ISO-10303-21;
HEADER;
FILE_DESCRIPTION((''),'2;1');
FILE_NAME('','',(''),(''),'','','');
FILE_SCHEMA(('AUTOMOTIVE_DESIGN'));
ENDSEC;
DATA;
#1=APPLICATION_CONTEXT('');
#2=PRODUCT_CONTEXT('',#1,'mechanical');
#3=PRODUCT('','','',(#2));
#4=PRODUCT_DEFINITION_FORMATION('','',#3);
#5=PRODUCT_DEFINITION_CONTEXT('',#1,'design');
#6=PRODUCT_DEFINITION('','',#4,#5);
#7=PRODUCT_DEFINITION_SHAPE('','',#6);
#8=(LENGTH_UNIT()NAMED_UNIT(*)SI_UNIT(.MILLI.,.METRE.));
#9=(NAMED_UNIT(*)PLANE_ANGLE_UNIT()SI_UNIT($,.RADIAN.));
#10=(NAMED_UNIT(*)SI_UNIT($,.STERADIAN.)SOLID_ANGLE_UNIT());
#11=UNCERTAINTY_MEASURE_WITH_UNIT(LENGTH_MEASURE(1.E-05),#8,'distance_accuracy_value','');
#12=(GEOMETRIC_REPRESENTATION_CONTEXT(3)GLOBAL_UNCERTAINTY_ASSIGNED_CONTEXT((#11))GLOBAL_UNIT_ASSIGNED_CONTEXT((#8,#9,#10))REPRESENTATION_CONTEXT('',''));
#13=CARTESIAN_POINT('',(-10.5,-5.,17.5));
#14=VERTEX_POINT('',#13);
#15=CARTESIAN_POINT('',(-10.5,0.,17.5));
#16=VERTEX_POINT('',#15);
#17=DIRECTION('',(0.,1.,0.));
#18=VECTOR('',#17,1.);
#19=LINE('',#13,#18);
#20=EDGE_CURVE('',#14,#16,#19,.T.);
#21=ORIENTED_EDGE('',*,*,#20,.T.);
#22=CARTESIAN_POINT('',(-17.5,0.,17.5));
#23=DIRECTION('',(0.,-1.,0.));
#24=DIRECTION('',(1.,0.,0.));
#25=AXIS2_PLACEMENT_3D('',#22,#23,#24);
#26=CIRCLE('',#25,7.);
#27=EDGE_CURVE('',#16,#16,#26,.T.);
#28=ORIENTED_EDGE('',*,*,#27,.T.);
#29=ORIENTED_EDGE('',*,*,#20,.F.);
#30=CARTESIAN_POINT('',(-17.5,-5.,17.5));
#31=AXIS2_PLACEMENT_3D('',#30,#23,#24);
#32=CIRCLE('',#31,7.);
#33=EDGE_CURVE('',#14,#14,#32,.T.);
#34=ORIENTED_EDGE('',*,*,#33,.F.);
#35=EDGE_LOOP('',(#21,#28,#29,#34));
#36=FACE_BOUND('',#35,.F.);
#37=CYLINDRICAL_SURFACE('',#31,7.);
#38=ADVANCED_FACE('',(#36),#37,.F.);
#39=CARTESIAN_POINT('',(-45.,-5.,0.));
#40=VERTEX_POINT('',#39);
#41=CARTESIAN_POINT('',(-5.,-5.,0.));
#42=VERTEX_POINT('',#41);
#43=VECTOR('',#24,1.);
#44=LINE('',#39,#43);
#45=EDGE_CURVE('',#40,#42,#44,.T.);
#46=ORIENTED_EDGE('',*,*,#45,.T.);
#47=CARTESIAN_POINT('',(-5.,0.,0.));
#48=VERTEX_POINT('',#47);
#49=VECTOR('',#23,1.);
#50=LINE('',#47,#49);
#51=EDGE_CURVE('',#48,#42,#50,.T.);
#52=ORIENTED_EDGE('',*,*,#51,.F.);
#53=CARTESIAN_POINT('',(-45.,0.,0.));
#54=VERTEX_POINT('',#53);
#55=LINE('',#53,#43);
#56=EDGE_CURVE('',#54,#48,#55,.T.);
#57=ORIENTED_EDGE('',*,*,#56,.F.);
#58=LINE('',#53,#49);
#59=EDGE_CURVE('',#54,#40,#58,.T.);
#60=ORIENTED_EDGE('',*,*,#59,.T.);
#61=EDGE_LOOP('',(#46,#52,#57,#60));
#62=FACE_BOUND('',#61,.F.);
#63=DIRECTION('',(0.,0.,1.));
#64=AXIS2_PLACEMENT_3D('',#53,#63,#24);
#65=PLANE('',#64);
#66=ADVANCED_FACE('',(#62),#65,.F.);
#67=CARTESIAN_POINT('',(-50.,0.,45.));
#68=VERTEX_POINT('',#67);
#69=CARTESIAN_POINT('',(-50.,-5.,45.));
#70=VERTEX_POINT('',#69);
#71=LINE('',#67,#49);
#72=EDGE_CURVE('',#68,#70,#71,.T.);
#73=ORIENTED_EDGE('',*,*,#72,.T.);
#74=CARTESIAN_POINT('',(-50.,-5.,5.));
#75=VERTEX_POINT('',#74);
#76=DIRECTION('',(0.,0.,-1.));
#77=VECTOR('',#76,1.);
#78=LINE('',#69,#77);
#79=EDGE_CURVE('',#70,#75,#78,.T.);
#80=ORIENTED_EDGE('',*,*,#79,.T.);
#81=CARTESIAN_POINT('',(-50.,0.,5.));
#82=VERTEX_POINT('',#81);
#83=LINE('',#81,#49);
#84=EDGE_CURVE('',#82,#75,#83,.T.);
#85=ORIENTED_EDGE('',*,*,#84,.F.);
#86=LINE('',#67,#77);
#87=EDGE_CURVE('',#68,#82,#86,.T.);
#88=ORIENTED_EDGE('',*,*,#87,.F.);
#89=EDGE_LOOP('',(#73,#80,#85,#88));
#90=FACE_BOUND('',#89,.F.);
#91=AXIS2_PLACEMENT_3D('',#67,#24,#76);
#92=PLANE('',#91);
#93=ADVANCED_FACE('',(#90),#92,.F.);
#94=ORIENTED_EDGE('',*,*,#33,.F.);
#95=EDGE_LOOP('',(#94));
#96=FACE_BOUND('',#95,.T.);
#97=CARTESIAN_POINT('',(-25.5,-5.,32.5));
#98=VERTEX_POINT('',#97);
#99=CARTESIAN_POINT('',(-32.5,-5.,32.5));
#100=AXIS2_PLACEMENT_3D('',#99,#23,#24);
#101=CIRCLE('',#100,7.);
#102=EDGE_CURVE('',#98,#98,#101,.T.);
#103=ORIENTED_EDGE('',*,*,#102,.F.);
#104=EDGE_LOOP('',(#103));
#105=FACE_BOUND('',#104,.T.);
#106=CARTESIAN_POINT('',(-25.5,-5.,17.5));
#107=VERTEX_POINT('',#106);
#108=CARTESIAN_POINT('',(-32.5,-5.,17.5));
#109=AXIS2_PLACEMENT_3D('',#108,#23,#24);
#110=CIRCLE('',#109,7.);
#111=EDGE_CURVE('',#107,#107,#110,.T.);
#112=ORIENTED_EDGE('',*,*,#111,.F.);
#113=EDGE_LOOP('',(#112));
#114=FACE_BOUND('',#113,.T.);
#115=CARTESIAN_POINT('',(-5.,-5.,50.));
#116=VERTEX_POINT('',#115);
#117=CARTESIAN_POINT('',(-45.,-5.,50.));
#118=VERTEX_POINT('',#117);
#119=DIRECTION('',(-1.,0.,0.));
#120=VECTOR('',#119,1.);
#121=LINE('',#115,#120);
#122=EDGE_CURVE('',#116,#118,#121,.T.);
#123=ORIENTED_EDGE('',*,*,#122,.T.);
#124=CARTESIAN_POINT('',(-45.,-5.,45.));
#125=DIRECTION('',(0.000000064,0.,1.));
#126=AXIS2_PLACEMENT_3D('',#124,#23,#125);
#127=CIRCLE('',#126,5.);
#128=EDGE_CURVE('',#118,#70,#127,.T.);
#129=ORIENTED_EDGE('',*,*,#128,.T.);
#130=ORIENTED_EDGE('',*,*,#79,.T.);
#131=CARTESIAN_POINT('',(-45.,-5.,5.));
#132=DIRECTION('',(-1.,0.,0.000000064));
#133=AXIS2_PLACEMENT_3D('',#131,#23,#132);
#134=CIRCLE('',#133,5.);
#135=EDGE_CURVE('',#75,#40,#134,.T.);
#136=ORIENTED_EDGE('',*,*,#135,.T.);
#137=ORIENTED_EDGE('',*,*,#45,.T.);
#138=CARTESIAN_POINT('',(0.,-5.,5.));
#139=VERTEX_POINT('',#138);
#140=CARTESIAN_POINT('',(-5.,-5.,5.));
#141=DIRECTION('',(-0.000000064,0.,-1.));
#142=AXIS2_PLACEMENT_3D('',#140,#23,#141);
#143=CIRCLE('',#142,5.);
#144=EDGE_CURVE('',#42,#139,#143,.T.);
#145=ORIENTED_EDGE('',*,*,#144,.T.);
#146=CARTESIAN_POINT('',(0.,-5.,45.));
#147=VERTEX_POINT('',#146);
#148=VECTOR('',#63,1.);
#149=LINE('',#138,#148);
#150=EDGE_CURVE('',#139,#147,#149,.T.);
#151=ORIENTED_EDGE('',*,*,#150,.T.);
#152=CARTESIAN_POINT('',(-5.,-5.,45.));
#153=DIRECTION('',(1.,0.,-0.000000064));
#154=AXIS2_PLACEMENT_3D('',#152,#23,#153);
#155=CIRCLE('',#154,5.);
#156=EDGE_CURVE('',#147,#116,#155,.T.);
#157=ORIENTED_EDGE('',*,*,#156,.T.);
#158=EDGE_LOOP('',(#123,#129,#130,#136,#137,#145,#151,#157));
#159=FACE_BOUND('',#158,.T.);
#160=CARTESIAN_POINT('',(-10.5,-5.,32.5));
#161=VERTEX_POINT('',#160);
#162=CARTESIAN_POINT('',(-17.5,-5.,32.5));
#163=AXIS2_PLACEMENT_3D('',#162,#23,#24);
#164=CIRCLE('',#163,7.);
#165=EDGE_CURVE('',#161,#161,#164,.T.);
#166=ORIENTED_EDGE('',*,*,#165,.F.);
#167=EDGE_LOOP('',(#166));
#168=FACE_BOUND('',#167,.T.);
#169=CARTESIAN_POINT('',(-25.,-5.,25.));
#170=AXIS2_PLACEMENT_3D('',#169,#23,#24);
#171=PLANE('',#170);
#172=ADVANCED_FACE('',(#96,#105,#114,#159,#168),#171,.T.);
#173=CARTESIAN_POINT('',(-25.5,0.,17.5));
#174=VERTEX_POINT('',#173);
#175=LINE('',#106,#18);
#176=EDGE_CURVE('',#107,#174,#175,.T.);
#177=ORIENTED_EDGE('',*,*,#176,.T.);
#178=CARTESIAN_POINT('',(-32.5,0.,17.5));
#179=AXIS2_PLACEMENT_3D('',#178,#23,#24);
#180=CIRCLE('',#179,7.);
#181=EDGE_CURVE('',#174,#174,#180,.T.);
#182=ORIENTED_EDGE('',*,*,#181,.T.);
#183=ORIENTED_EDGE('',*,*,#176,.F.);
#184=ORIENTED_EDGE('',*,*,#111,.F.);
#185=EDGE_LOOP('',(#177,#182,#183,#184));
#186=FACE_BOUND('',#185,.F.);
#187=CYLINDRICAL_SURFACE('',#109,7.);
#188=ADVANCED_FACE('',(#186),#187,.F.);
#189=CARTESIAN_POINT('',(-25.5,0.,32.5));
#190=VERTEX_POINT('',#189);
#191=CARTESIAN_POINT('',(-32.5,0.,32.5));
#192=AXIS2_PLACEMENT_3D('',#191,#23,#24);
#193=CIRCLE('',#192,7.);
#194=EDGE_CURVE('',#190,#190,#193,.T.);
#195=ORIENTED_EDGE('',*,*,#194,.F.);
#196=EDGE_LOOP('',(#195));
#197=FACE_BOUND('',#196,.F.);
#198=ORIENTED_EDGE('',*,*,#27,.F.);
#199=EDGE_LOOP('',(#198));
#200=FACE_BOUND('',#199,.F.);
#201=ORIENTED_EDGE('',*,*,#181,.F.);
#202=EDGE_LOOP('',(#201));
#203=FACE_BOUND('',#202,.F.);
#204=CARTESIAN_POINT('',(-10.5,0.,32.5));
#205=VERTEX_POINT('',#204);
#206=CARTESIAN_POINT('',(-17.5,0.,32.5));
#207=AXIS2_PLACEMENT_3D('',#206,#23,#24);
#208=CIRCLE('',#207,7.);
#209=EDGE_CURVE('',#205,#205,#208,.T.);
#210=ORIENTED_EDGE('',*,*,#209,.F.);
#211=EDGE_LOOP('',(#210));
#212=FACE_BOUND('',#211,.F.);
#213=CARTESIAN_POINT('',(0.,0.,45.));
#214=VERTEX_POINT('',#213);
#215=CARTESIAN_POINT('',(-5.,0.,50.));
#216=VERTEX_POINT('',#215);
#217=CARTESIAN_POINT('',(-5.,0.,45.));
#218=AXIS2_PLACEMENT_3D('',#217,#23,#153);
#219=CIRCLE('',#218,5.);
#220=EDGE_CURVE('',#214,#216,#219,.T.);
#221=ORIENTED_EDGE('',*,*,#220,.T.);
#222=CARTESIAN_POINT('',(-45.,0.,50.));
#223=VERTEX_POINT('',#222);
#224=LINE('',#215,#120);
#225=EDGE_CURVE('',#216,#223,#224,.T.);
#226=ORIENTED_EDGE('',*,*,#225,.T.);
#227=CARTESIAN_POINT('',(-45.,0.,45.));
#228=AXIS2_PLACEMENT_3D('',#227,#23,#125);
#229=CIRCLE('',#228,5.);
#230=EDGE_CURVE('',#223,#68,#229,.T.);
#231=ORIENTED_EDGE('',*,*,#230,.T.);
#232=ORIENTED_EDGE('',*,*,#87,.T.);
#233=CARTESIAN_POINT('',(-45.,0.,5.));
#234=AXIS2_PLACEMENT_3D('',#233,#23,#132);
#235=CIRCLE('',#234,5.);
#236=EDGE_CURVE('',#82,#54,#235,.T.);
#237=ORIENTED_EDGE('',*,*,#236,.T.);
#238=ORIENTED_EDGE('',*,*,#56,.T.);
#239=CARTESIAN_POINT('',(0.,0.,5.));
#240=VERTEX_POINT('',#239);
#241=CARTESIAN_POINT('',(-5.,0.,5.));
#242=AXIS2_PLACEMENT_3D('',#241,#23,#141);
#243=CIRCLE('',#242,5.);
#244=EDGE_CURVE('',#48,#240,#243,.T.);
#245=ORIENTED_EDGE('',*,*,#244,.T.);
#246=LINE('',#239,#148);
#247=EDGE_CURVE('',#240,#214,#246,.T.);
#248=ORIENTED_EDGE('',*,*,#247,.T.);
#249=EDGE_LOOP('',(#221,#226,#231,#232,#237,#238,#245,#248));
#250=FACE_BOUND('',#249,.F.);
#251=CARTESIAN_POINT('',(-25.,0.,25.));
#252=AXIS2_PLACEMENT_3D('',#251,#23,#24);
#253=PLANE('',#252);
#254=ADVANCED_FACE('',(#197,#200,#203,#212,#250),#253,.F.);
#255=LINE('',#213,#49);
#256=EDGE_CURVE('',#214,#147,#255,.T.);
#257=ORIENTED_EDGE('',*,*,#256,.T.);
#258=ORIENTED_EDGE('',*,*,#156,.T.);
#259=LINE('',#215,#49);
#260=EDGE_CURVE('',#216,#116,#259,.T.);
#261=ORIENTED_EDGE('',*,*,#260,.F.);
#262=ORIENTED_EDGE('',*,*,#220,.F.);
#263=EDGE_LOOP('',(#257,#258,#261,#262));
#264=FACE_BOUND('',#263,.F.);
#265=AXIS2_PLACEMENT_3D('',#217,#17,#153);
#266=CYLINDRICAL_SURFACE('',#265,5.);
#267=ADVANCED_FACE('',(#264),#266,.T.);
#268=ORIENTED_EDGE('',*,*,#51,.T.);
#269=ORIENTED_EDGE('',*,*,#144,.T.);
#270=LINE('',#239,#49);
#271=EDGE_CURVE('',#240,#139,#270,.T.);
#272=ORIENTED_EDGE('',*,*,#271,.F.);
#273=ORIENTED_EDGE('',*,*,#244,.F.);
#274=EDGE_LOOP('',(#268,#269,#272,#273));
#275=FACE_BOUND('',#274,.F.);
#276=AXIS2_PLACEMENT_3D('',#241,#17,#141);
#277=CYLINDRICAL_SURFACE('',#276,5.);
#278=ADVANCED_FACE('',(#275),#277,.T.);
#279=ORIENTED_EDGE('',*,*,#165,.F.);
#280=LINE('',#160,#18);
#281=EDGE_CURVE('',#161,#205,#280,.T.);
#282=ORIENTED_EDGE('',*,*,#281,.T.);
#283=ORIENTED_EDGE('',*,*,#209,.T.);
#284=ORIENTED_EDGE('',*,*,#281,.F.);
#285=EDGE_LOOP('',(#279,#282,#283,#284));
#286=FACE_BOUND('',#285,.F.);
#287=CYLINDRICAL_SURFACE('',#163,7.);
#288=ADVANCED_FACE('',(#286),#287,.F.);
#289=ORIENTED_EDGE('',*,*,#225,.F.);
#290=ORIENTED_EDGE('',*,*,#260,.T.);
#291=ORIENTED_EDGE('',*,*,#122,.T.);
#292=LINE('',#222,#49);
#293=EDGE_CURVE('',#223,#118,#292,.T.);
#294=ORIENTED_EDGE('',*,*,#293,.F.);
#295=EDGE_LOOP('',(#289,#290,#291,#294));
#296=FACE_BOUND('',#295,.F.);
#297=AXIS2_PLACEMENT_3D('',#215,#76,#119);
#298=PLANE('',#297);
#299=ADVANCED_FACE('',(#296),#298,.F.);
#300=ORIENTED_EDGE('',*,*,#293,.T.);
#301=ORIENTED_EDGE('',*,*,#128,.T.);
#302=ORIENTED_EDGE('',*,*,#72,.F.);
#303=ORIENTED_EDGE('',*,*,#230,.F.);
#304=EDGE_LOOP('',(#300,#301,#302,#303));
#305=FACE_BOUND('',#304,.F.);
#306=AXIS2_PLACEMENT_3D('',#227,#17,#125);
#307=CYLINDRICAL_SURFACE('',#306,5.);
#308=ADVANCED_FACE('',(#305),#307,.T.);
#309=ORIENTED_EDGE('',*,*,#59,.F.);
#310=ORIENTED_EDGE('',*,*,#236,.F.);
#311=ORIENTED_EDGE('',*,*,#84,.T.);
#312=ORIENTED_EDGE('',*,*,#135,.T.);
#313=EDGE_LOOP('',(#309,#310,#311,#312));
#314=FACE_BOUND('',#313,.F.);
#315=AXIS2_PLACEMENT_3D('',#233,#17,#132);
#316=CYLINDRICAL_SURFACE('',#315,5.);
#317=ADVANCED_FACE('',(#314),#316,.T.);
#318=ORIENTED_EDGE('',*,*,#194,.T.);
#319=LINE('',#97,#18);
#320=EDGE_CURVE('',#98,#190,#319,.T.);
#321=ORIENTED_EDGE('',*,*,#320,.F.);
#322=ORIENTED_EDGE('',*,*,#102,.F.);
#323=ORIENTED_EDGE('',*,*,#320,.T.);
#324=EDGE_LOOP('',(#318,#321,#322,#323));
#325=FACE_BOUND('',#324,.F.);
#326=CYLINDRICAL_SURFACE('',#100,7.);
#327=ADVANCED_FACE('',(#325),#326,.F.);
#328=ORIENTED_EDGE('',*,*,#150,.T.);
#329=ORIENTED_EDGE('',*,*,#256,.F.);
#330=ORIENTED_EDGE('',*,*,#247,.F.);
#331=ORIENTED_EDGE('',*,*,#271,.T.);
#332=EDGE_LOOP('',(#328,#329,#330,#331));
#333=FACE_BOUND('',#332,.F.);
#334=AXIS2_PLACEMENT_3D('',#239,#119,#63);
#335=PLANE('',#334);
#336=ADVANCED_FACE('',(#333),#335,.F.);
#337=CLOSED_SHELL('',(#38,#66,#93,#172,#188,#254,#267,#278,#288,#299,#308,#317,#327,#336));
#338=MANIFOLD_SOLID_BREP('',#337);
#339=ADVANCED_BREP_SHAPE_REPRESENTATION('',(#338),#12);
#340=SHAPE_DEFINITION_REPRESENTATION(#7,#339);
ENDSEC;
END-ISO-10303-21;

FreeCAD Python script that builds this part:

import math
import FreeCAD as App
import Part
import Sketcher

V = App.Vector

doc = App.newDocument("Part")
body = doc.addObject("PartDesign::Body", "Body")

sketch1 = body.newObject("Sketcher::SketchObject", "Sketch")
sketch1.AttachmentSupport = (doc.getObject("XZ_Plane"), [""])
sketch1.MapMode = "FlatFace"
sketch1.addGeometry(Part.LineSegment(V(-5, 50, 0), V(-45, 50, 0)), False)
sketch1.addGeometry(Part.ArcOfCircle(Part.Circle(V(-45, 45, 0), V(0, 0, 1), 5), math.radians(90), math.radians(180)), False)
sketch1.addGeometry(Part.LineSegment(V(-50, 45, 0), V(-50, 5, 0)), False)
sketch1.addGeometry(Part.ArcOfCircle(Part.Circle(V(-45, 5, 0), V(0, 0, 1), 5), math.radians(180), math.radians(270)), False)
sketch1.addGeometry(Part.LineSegment(V(-45, 0, 0), V(-5, 0, 0)), False)
sketch1.addGeometry(Part.ArcOfCircle(Part.Circle(V(-5, 5, 0), V(0, 0, 1), 5), math.radians(-90), math.radians(0)), False)
sketch1.addGeometry(Part.LineSegment(V(0, 5, 0), V(0, 45, 0)), False)
sketch1.addGeometry(Part.ArcOfCircle(Part.Circle(V(-5, 45, 0), V(0, 0, 1), 5), math.radians(0), math.radians(90)), False)
sketch1.addConstraint(Sketcher.Constraint("Tangent", 0, 2, 1, 1))
sketch1.addConstraint(Sketcher.Constraint("Tangent", 1, 2, 2, 1))
sketch1.addConstraint(Sketcher.Constraint("Tangent", 2, 2, 3, 1))
sketch1.addConstraint(Sketcher.Constraint("Tangent", 3, 2, 4, 1))
sketch1.addConstraint(Sketcher.Constraint("Tangent", 4, 2, 5, 1))
sketch1.addConstraint(Sketcher.Constraint("Tangent", 5, 2, 6, 1))
sketch1.addConstraint(Sketcher.Constraint("Tangent", 6, 2, 7, 1))
sketch1.addConstraint(Sketcher.Constraint("Tangent", 7, 2, 0, 1))
sketch1.addConstraint(Sketcher.Constraint("Horizontal", 0))
sketch1.addConstraint(Sketcher.Constraint("Vertical", 2))
sketch1.addConstraint(Sketcher.Constraint("Horizontal", 4))
sketch1.addConstraint(Sketcher.Constraint("Vertical", 6))
sketch1.addConstraint(Sketcher.Constraint("Equal", 1, 3))
sketch1.addConstraint(Sketcher.Constraint("Equal", 3, 5))
sketch1.addConstraint(Sketcher.Constraint("Equal", 5, 7))
sketch1.addConstraint(Sketcher.Constraint("PointOnObject", 3, 2, -1))
sketch1.addConstraint(Sketcher.Constraint("PointOnObject", 5, 2, -2))
sketch1.addConstraint(Sketcher.Constraint("Equal", 4, 2))
sketch1.addConstraint(Sketcher.Constraint("Radius", 1, 5.0))
sketch1.addConstraint(Sketcher.Constraint("DistanceX", 0, 2, 0, 1, 40.0))
pad1 = body.newObject("PartDesign::Pad", "Pad")
pad1.Profile = sketch1
pad1.Length = 5

sketch2 = body.newObject("Sketcher::SketchObject", "Sketch001")
sketch2.AttachmentSupport = (doc.getObject("XZ_Plane"), [""])
sketch2.MapMode = "FlatFace"
sketch2.AttachmentOffset = App.Placement(V(0, 0, 5), App.Rotation())
sketch2.addGeometry(Part.Circle(V(-18, 32, 0), V(0, 0, 1), 7), False)
sketch2.addGeometry(Part.Circle(V(-32, 32, 0), V(0, 0, 1), 7), False)
sketch2.addGeometry(Part.Circle(V(-18, 18, 0), V(0, 0, 1), 7), False)
sketch2.addGeometry(Part.Circle(V(-32, 18, 0), V(0, 0, 1), 7), False)
sketch2.addConstraint(Sketcher.Constraint("Equal", 0, 1))
sketch2.addConstraint(Sketcher.Constraint("Equal", 1, 2))
sketch2.addConstraint(Sketcher.Constraint("Equal", 2, 3))
sketch2.addConstraint(Sketcher.Constraint("Horizontal", 0, 3, 1, 3))
sketch2.addConstraint(Sketcher.Constraint("Horizontal", 2, 3, 3, 3))
sketch2.addConstraint(Sketcher.Constraint("Vertical", 0, 3, 2, 3))
sketch2.addConstraint(Sketcher.Constraint("Vertical", 1, 3, 3, 3))
sketch2.addConstraint(Sketcher.Constraint("Diameter", 0, 14.0))
sketch2.addConstraint(Sketcher.Constraint("DistanceX", 1, 3, 0, 3, 15.0))
sketch2.addConstraint(Sketcher.Constraint("DistanceY", 2, 3, 0, 3, 15.0))
sketch2.addConstraint(Sketcher.Constraint("DistanceX", 0, 3, -1, 1, 17.5))
sketch2.addConstraint(Sketcher.Constraint("DistanceY", -1, 1, 0, 3, 32.5))
pocket1 = body.newObject("PartDesign::Pocket", "Pocket")
pocket1.Profile = sketch2
pocket1.Type = "ThroughAll"

doc.recompute()
